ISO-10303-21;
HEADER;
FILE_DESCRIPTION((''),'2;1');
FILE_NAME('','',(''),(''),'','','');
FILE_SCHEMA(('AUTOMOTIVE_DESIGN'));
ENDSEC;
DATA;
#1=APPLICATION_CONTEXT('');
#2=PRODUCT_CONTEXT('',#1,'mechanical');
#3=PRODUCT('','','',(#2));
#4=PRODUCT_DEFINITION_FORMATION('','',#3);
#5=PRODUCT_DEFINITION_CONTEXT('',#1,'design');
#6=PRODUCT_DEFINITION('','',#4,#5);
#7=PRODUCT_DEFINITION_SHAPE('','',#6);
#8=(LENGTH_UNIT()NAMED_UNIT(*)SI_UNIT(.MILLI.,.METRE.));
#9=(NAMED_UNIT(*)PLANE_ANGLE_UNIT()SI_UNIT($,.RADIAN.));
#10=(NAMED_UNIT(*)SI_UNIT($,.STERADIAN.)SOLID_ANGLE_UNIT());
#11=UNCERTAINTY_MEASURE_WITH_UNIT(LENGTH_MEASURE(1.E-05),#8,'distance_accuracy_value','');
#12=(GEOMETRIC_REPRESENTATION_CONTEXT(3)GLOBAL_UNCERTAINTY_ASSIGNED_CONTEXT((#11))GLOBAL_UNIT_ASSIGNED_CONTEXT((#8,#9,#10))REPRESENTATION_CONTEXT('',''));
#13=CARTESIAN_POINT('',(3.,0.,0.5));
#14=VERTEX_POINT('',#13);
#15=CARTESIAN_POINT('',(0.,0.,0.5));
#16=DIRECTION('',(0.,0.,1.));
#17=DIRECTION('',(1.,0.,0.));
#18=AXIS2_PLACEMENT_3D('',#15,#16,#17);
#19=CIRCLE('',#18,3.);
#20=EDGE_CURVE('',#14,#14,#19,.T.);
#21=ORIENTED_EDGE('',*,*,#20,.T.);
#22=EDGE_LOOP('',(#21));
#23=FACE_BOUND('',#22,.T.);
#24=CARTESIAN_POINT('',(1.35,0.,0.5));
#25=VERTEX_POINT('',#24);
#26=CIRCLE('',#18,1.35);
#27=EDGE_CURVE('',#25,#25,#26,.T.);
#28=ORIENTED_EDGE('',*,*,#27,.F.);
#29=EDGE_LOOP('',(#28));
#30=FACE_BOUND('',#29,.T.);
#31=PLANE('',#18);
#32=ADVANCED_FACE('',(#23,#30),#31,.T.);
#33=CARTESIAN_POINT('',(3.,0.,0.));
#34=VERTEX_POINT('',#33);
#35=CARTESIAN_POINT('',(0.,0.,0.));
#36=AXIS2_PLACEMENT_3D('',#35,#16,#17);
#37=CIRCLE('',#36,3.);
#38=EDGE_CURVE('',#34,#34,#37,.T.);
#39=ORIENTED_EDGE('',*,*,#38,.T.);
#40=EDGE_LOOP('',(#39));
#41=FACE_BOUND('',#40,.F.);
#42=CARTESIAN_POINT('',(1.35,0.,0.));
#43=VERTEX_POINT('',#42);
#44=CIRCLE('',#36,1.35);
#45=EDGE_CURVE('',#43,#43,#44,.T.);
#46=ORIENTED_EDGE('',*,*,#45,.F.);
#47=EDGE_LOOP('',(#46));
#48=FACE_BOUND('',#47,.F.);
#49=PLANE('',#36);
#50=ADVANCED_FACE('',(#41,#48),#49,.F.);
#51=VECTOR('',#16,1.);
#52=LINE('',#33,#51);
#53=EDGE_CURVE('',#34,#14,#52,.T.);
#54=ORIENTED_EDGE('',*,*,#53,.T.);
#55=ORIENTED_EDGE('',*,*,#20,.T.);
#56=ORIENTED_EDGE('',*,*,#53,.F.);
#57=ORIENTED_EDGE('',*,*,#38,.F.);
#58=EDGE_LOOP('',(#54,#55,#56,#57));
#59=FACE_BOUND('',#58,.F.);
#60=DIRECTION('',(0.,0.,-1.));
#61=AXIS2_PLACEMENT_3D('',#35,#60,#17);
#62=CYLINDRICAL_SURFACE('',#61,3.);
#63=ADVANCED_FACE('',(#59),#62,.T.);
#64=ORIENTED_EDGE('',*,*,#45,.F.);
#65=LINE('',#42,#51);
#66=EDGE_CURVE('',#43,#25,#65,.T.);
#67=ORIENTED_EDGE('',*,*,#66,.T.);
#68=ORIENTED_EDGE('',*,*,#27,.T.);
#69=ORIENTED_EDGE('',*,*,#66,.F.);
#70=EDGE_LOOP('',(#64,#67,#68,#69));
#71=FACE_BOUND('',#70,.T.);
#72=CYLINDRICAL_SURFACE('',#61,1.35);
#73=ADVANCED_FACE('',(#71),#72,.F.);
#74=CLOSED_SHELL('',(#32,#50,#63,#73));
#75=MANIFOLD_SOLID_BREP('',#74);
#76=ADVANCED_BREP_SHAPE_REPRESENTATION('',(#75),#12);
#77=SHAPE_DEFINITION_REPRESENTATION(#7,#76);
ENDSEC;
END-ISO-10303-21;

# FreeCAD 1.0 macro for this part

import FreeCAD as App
import Part
import Sketcher
from FreeCAD import Vector

doc = App.newDocument("Part")
body = doc.addObject("PartDesign::Body", "Body")

# Sketch on XY plane
sketch1 = body.newObject("Sketcher::SketchObject", "Sketch")
sketch1.AttachmentSupport = (doc.getObject("XY_Plane"), [""])
sketch1.MapMode = "FlatFace"
sketch1.addGeometry([
    Part.Circle(Vector(0, 0, 0), Vector(0, 0, 1), 3),
    Part.Circle(Vector(0, 0, 0), Vector(0, 0, 1), 1.4),
], False)
sketch1.addConstraint([
    Sketcher.Constraint("Coincident", 0, 3, -1, 1),
    Sketcher.Constraint("Coincident", 1, 3, -1, 1),
    Sketcher.Constraint("Diameter", 0, 6.0),
    Sketcher.Constraint("Diameter", 1, 2.7),
])
pad1 = body.newObject("PartDesign::Pad", "Pad")
pad1.Profile = sketch1
pad1.Length = 0.5

doc.recompute()
